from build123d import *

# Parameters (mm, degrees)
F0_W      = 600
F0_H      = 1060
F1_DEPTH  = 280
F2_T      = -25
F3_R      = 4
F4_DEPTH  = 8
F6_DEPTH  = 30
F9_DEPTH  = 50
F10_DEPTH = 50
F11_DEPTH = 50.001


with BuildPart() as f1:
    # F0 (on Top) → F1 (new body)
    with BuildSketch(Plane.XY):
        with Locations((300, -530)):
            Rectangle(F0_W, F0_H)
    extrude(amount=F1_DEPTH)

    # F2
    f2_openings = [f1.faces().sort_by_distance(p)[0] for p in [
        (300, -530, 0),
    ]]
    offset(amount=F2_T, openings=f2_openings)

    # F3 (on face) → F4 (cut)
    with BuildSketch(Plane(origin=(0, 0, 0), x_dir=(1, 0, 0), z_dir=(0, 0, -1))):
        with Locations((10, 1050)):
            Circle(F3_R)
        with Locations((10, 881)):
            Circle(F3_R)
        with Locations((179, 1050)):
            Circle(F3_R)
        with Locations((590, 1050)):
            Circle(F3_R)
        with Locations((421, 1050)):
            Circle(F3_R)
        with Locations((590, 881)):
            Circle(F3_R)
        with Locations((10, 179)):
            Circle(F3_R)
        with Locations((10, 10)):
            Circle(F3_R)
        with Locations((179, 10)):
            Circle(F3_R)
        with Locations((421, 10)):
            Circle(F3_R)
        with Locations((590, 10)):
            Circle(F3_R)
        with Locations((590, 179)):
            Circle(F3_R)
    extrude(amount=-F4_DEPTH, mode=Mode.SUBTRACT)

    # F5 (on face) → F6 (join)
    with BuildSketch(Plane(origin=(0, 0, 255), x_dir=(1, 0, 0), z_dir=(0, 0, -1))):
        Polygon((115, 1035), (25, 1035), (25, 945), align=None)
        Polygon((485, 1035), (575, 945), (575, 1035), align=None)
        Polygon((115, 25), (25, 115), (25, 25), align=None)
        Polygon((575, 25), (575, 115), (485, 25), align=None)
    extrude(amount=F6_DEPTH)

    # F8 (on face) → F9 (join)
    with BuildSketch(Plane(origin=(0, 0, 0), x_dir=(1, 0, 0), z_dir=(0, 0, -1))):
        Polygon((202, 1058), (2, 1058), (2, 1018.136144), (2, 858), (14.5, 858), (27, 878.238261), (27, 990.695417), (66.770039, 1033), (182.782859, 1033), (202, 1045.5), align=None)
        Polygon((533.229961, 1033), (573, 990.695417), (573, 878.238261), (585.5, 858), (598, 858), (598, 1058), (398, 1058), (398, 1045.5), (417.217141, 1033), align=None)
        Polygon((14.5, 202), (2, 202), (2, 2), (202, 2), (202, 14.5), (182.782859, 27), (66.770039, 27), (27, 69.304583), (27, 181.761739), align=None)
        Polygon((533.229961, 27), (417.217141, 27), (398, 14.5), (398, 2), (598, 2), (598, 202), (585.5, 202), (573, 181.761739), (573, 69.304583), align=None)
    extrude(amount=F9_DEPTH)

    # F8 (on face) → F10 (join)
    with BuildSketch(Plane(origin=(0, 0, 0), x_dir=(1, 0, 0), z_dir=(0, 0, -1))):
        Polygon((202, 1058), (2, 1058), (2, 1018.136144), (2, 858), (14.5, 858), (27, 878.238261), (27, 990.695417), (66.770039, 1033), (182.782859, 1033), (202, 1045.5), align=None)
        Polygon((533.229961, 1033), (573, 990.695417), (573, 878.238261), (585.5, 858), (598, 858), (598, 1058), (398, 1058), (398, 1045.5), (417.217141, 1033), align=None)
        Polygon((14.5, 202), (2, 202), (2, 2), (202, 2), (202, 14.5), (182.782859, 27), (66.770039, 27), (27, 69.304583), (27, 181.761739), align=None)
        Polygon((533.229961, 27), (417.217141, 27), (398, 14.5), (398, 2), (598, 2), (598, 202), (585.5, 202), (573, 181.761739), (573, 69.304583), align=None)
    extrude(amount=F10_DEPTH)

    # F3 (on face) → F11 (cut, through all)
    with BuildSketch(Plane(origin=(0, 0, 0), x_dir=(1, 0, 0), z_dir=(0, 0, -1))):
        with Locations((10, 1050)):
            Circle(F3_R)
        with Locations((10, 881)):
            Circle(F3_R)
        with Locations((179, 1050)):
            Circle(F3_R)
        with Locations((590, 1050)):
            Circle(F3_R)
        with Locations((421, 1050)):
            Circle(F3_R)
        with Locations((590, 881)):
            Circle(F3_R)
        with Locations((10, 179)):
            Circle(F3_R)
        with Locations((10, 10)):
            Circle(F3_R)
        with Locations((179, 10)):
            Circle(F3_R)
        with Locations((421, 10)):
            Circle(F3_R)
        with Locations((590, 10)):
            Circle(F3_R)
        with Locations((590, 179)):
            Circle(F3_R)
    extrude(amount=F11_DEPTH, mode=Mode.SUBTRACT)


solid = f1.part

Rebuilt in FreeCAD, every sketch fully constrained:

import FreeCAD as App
import Part
import Sketcher
from FreeCAD import Vector


def faces_at(feature, points):
    """Names of the faces that lie closest to the given points."""
    faces = feature.Shape.Faces
    near = lambda p: min(range(len(faces)), key=lambda i: faces[i].distToShape(Part.Vertex(*p))[0])
    return sorted({f"Face{near(p) + 1}" for p in points})


def add_polygon(sketch, points):
    """Adds a closed chain of lines whose ends are joined by coincident constraints."""
    first, n = sketch.GeometryCount, len(points)
    for a, b in zip(points, points[1:] + points[:1]):
        sketch.addGeometry(Part.LineSegment(App.Vector(*a, 0), App.Vector(*b, 0)), False)
    for i in range(n):
        sketch.addConstraint(Sketcher.Constraint("Coincident", first + i, 2, first + (i + 1) % n, 1))

doc = App.newDocument("Part")
body = doc.addObject("PartDesign::Body", "Body")

# Sketch on XY plane
sketch1 = body.newObject("Sketcher::SketchObject", "Sketch")
sketch1.AttachmentSupport = (doc.getObject("XY_Plane"), [""])
sketch1.MapMode = "FlatFace"
add_polygon(sketch1, [(0, 0), (0, -1060), (600, -1060), (600, 0)])  # lines 0-3
sketch1.addConstraint([
    Sketcher.Constraint("Vertical", 0),
    Sketcher.Constraint("Horizontal", 1),
    Sketcher.Constraint("Vertical", 2),
    Sketcher.Constraint("Horizontal", 3),
    Sketcher.Constraint("Coincident", 3, 2, -1, 1),
    Sketcher.Constraint("DistanceX", 1, 1, 1, 2, 600.0),
    Sketcher.Constraint("DistanceY", 0, 2, 0, 1, 1060.0),
])
pad1 = body.newObject("PartDesign::Pad", "Pad")
pad1.Profile = sketch1
pad1.Length = 280
doc.recompute()

thickness = body.newObject("PartDesign::Thickness", "Thickness")
thickness.Base = (pad1, faces_at(pad1, [(300, -530, 0)]))
thickness.Value = 25
thickness.Reversed = True
thickness.Join = "Arc"

# Sketch on XY plane
sketch2 = body.newObject("Sketcher::SketchObject", "Sketch001")
sketch2.AttachmentSupport = (doc.getObject("XY_Plane"), [""])
sketch2.MapMode = "FlatFace"
sketch2.addGeometry([
    Part.Circle(Vector(10, -1050, 0), Vector(0, 0, 1), 4),  # 0
    Part.Circle(Vector(10, -881, 0), Vector(0, 0, 1), 4),  # 1
    Part.Circle(Vector(179, -1050, 0), Vector(0, 0, 1), 4),  # 2
    Part.Circle(Vector(590, -1050, 0), Vector(0, 0, 1), 4),  # 3
    Part.Circle(Vector(421, -1050, 0), Vector(0, 0, 1), 4),  # 4
    Part.Circle(Vector(590, -881, 0), Vector(0, 0, 1), 4),  # 5
    Part.Circle(Vector(10, -179, 0), Vector(0, 0, 1), 4),  # 6
    Part.Circle(Vector(10, -10, 0), Vector(0, 0, 1), 4),  # 7
    Part.Circle(Vector(179, -10, 0), Vector(0, 0, 1), 4),  # 8
    Part.Circle(Vector(421, -10, 0), Vector(0, 0, 1), 4),  # 9
    Part.Circle(Vector(590, -10, 0), Vector(0, 0, 1), 4),  # 10
    Part.Circle(Vector(590, -179, 0), Vector(0, 0, 1), 4),  # 11
], False)
sketch2.addConstraint([
    Sketcher.Constraint("Equal", 0, 1),
    Sketcher.Constraint("Equal", 1, 2),
    Sketcher.Constraint("Equal", 2, 3),
    Sketcher.Constraint("Equal", 3, 4),
    Sketcher.Constraint("Equal", 4, 5),
    Sketcher.Constraint("Equal", 5, 6),
    Sketcher.Constraint("Equal", 6, 7),
    Sketcher.Constraint("Equal", 7, 8),
    Sketcher.Constraint("Equal", 8, 9),
    Sketcher.Constraint("Equal", 9, 10),
    Sketcher.Constraint("Equal", 10, 11),
    Sketcher.Constraint("Horizontal", 0, 3, 2, 3),
    Sketcher.Constraint("Horizontal", 2, 3, 3, 3),
    Sketcher.Constraint("Horizontal", 3, 3, 4, 3),
    Sketcher.Constraint("Horizontal", 1, 3, 5, 3),
    Sketcher.Constraint("Horizontal", 7, 3, 8, 3),
    Sketcher.Constraint("Horizontal", 8, 3, 9, 3),
    Sketcher.Constraint("Horizontal", 9, 3, 10, 3),
    Sketcher.Constraint("Horizontal", 6, 3, 11, 3),
    Sketcher.Constraint("Vertical", 0, 3, 1, 3),
    Sketcher.Constraint("Vertical", 3, 3, 5, 3),
    Sketcher.Constraint("Vertical", 1, 3, 6, 3),
    Sketcher.Constraint("Vertical", 6, 3, 7, 3),
    Sketcher.Constraint("Vertical", 2, 3, 8, 3),
    Sketcher.Constraint("Vertical", 4, 3, 9, 3),
    Sketcher.Constraint("Vertical", 5, 3, 10, 3),
    Sketcher.Constraint("Vertical", 10, 3, 11, 3),
    Sketcher.Constraint("Diameter", 0, 8.0),
    Sketcher.Constraint("DistanceX", -1, 1, 0, 3, 10.0),
    Sketcher.Constraint("DistanceY", 0, 3, -1, 1, 1050.0),
    Sketcher.Constraint("DistanceY", 1, 3, -1, 1, 881.0),
    Sketcher.Constraint("DistanceX", -1, 1, 2, 3, 179.0),
    Sketcher.Constraint("DistanceX", -1, 1, 3, 3, 590.0),
    Sketcher.Constraint("DistanceX", -1, 1, 4, 3, 421.0),
    Sketcher.Constraint("DistanceY", 6, 3, -1, 1, 179.0),
    Sketcher.Constraint("DistanceY", 7, 3, -1, 1, 10.0),
])
pocket1 = body.newObject("PartDesign::Pocket", "Pocket")
pocket1.Profile = sketch2
pocket1.Length = 8
pocket1.Reversed = True

# Sketch on XY plane
sketch3 = body.newObject("Sketcher::SketchObject", "Sketch002")
sketch3.AttachmentSupport = (doc.getObject("XY_Plane"), [""])
sketch3.MapMode = "FlatFace"
sketch3.AttachmentOffset = App.Placement(Vector(0, 0, 255), App.Rotation())
add_polygon(sketch3, [(115, -1035), (25, -1035), (25, -945)])  # lines 0-2
add_polygon(sketch3, [(485, -1035), (575, -945), (575, -1035)])  # lines 3-5
add_polygon(sketch3, [(115, -25), (25, -115), (25, -25)])  # lines 6-8
add_polygon(sketch3, [(575, -25), (575, -115), (485, -25)])  # lines 9-11
sketch3.addConstraint([
    Sketcher.Constraint("Horizontal", 0),
    Sketcher.Constraint("Vertical", 1),
    Sketcher.Constraint("Vertical", 4),
    Sketcher.Constraint("Horizontal", 5),
    Sketcher.Constraint("Vertical", 7),
    Sketcher.Constraint("Horizontal", 8),
    Sketcher.Constraint("Vertical", 9),
    Sketcher.Constraint("Horizontal", 11),
    Sketcher.Constraint("Perpendicular", 2, 3),
    Sketcher.Constraint("Parallel", 3, 6),
    Sketcher.Constraint("Perpendicular", 6, 10),
    Sketcher.Constraint("Horizontal", 1, 2, 3, 2),
    Sketcher.Constraint("Horizontal", 2, 2, 4, 2),
    Sketcher.Constraint("Horizontal", 6, 2, 9, 2),
    Sketcher.Constraint("Horizontal", 8, 2, 10, 2),
    Sketcher.Constraint("Vertical", 1, 2, 6, 2),
    Sketcher.Constraint("Vertical", 2, 2, 8, 2),
    Sketcher.Constraint("Vertical", 4, 2, 9, 2),
    Sketcher.Constraint("Vertical", 5, 2, 10, 2),
    Sketcher.Constraint("DistanceX", 0, 2, 0, 1, 90.0),
    Sketcher.Constraint("DistanceX", -1, 1, 0, 2, 25.0),
    Sketcher.Constraint("DistanceY", 0, 2, -1, 1, 1035.0),
    Sketcher.Constraint("DistanceX", -1, 1, 3, 2, 575.0),
    Sketcher.Constraint("DistanceY", 6, 2, -1, 1, 115.0),
])
pad2 = body.newObject("PartDesign::Pad", "Pad001")
pad2.Profile = sketch3
pad2.Length = 30
pad2.Reversed = True

# Sketch on XY plane
sketch4 = body.newObject("Sketcher::SketchObject", "Sketch003")
sketch4.AttachmentSupport = (doc.getObject("XY_Plane"), [""])
sketch4.MapMode = "FlatFace"
add_polygon(sketch4, [(202, -1058), (2, -1058), (2, -858), (14, -858), (27, -878), (27, -991), (67, -1033), (183, -1033), (202, -1046)])  # lines 0-8
add_polygon(sketch4, [(533, -1033), (573, -991), (573, -878), (586, -858), (598, -858), (598, -1058), (398, -1058), (398, -1046), (417, -1033)])  # lines 9-17
add_polygon(sketch4, [(14, -202), (2, -202), (2, -2), (202, -2), (202, -14), (183, -27), (67, -27), (27, -69), (27, -182)])  # lines 18-26
add_polygon(sketch4, [(533, -27), (417, -27), (398, -14), (398, -2), (598, -2), (598, -202), (586, -202), (573, -182), (573, -69)])  # lines 27-35
sketch4.addConstraint([
    Sketcher.Constraint("Horizontal", 0),
    Sketcher.Constraint("Vertical", 1),
    Sketcher.Constraint("Horizontal", 2),
    Sketcher.Constraint("Vertical", 4),
    Sketcher.Constraint("Horizontal", 6),
    Sketcher.Constraint("Vertical", 8),
    Sketcher.Constraint("Vertical", 10),
    Sketcher.Constraint("Horizontal", 12),
    Sketcher.Constraint("Vertical", 13),
    Sketcher.Constraint("Horizontal", 14),
    Sketcher.Constraint("Vertical", 15),
    Sketcher.Constraint("Horizontal", 17),
    Sketcher.Constraint("Horizontal", 18),
    Sketcher.Constraint("Vertical", 19),
    Sketcher.Constraint("Horizontal", 20),
    Sketcher.Constraint("Vertical", 21),
    Sketcher.Constraint("Horizontal", 23),
    Sketcher.Constraint("Vertical", 25),
    Sketcher.Constraint("Horizontal", 27),
    Sketcher.Constraint("Vertical", 29),
    Sketcher.Constraint("Horizontal", 30),
    Sketcher.Constraint("Vertical", 31),
    Sketcher.Constraint("Horizontal", 32),
    Sketcher.Constraint("Vertical", 34),
    Sketcher.Constraint("Parallel", 16, 22),
    Sketcher.Constraint("Parallel", 9, 24),
    Sketcher.Constraint("Parallel", 11, 26),
    Sketcher.Constraint("Parallel", 7, 28),
    Sketcher.Constraint("Parallel", 3, 33),
    Sketcher.Constraint("Parallel", 5, 35),
    Sketcher.Constraint("Horizontal", 4, 2, 9, 2),
    Sketcher.Constraint("Horizontal", 3, 2, 10, 2),
    Sketcher.Constraint("Horizontal", 2, 2, 11, 2),
    Sketcher.Constraint("Horizontal", 8, 2, 13, 2),
    Sketcher.Constraint("Horizontal", 7, 2, 15, 2),
    Sketcher.Constraint("Horizontal", 6, 2, 16, 2),
    Sketcher.Constraint("Horizontal", 23, 2, 27, 2),
    Sketcher.Constraint("Horizontal", 21, 2, 28, 2),
    Sketcher.Constraint("Horizontal", 20, 2, 29, 2),
    Sketcher.Constraint("Horizontal", 26, 2, 31, 2),
    Sketcher.Constraint("Horizontal", 25, 2, 33, 2),
    Sketcher.Constraint("Horizontal", 24, 2, 34, 2),
    Sketcher.Constraint("Vertical", 1, 2, 18, 2),
    Sketcher.Constraint("Vertical", 8, 2, 20, 2),
    Sketcher.Constraint("Vertical", 6, 2, 22, 2),
    Sketcher.Constraint("Vertical", 5, 2, 23, 2),
    Sketcher.Constraint("Vertical", 4, 2, 24, 2),
    Sketcher.Constraint("Vertical", 2, 2, 26, 2),
    Sketcher.Constraint("Vertical", 16, 2, 27, 2),
    Sketcher.Constraint("Vertical", 15, 2, 28, 2),
    Sketcher.Constraint("Vertical", 13, 2, 30, 2),
    Sketcher.Constraint("Vertical", 11, 2, 32, 2),
    Sketcher.Constraint("Vertical", 10, 2, 33, 2),
    Sketcher.Constraint("Vertical", 17, 2, 35, 2),
    Sketcher.Constraint("Equal", 2, 12),
    Sketcher.Constraint("Equal", 0, 14),
    Sketcher.Constraint("Equal", 30, 1),
    Sketcher.Constraint("Equal", 32, 8),
    Sketcher.Constraint("Equal", 13, 19),
    Sketcher.Constraint("Equal", 15, 21),
    Sketcher.Constraint("DistanceX", 0, 2, 0, 1, 200.0),
    Sketcher.Constraint("DistanceX", 2, 1, 2, 2, 12.5),
    Sketcher.Constraint("DistanceX", -1, 1, 0, 2, 2.0),
    Sketcher.Constraint("DistanceY", 0, 2, -1, 1, 1058.0),
    Sketcher.Constraint("DistanceX", -1, 1, 3, 2, 27.0),
    Sketcher.Constraint("DistanceY", 5, 2, -1, 1, 1033.0),
    Sketcher.Constraint("DistanceX", -1, 1, 9, 2, 573.0),
    Sketcher.Constraint("DistanceY", 18, 2, -1, 1, 202.0),
    Sketcher.Constraint("DistanceX", 6, 1, 6, 2, 116.01282),
    Sketcher.Constraint("DistanceY", 4, 2, 4, 1, 112.457156),
    Sketcher.Constraint("DistanceY", 3, 2, -1, 1, 878.238261),
    Sketcher.Constraint("DistanceX", -1, 1, 5, 2, 66.770039),
])
pad3 = body.newObject("PartDesign::Pad", "Pad002")
pad3.Profile = sketch4
pad3.Length = 50
pad3.Reversed = True

# Sketch on XY plane
sketch5 = body.newObject("Sketcher::SketchObject", "Sketch004")
sketch5.AttachmentSupport = (doc.getObject("XY_Plane"), [""])
sketch5.MapMode = "FlatFace"
add_polygon(sketch5, [(202, -1058), (2, -1058), (2, -858), (14, -858), (27, -878), (27, -991), (67, -1033), (183, -1033), (202, -1046)])  # lines 0-8
add_polygon(sketch5, [(533, -1033), (573, -991), (573, -878), (586, -858), (598, -858), (598, -1058), (398, -1058), (398, -1046), (417, -1033)])  # lines 9-17
add_polygon(sketch5, [(14, -202), (2, -202), (2, -2), (202, -2), (202, -14), (183, -27), (67, -27), (27, -69), (27, -182)])  # lines 18-26
add_polygon(sketch5, [(533, -27), (417, -27), (398, -14), (398, -2), (598, -2), (598, -202), (586, -202), (573, -182), (573, -69)])  # lines 27-35
sketch5.addConstraint([
    Sketcher.Constraint("Horizontal", 0),
    Sketcher.Constraint("Vertical", 1),
    Sketcher.Constraint("Horizontal", 2),
    Sketcher.Constraint("Vertical", 4),
    Sketcher.Constraint("Horizontal", 6),
    Sketcher.Constraint("Vertical", 8),
    Sketcher.Constraint("Vertical", 10),
    Sketcher.Constraint("Horizontal", 12),
    Sketcher.Constraint("Vertical", 13),
    Sketcher.Constraint("Horizontal", 14),
    Sketcher.Constraint("Vertical", 15),
    Sketcher.Constraint("Horizontal", 17),
    Sketcher.Constraint("Horizontal", 18),
    Sketcher.Constraint("Vertical", 19),
    Sketcher.Constraint("Horizontal", 20),
    Sketcher.Constraint("Vertical", 21),
    Sketcher.Constraint("Horizontal", 23),
    Sketcher.Constraint("Vertical", 25),
    Sketcher.Constraint("Horizontal", 27),
    Sketcher.Constraint("Vertical", 29),
    Sketcher.Constraint("Horizontal", 30),
    Sketcher.Constraint("Vertical", 31),
    Sketcher.Constraint("Horizontal", 32),
    Sketcher.Constraint("Vertical", 34),
    Sketcher.Constraint("Parallel", 16, 22),
    Sketcher.Constraint("Parallel", 9, 24),
    Sketcher.Constraint("Parallel", 11, 26),
    Sketcher.Constraint("Parallel", 7, 28),
    Sketcher.Constraint("Parallel", 3, 33),
    Sketcher.Constraint("Parallel", 5, 35),
    Sketcher.Constraint("Horizontal", 4, 2, 9, 2),
    Sketcher.Constraint("Horizontal", 3, 2, 10, 2),
    Sketcher.Constraint("Horizontal", 2, 2, 11, 2),
    Sketcher.Constraint("Horizontal", 8, 2, 13, 2),
    Sketcher.Constraint("Horizontal", 7, 2, 15, 2),
    Sketcher.Constraint("Horizontal", 6, 2, 16, 2),
    Sketcher.Constraint("Horizontal", 23, 2, 27, 2),
    Sketcher.Constraint("Horizontal", 21, 2, 28, 2),
    Sketcher.Constraint("Horizontal", 20, 2, 29, 2),
    Sketcher.Constraint("Horizontal", 26, 2, 31, 2),
    Sketcher.Constraint("Horizontal", 25, 2, 33, 2),
    Sketcher.Constraint("Horizontal", 24, 2, 34, 2),
    Sketcher.Constraint("Vertical", 1, 2, 18, 2),
    Sketcher.Constraint("Vertical", 8, 2, 20, 2),
    Sketcher.Constraint("Vertical", 6, 2, 22, 2),
    Sketcher.Constraint("Vertical", 5, 2, 23, 2),
    Sketcher.Constraint("Vertical", 4, 2, 24, 2),
    Sketcher.Constraint("Vertical", 2, 2, 26, 2),
    Sketcher.Constraint("Vertical", 16, 2, 27, 2),
    Sketcher.Constraint("Vertical", 15, 2, 28, 2),
    Sketcher.Constraint("Vertical", 13, 2, 30, 2),
    Sketcher.Constraint("Vertical", 11, 2, 32, 2),
    Sketcher.Constraint("Vertical", 10, 2, 33, 2),
    Sketcher.Constraint("Vertical", 17, 2, 35, 2),
    Sketcher.Constraint("Equal", 2, 12),
    Sketcher.Constraint("Equal", 0, 14),
    Sketcher.Constraint("Equal", 30, 1),
    Sketcher.Constraint("Equal", 32, 8),
    Sketcher.Constraint("Equal", 13, 19),
    Sketcher.Constraint("Equal", 15, 21),
    Sketcher.Constraint("DistanceX", 0, 2, 0, 1, 200.0),
    Sketcher.Constraint("DistanceX", 2, 1, 2, 2, 12.5),
    Sketcher.Constraint("DistanceX", -1, 1, 0, 2, 2.0),
    Sketcher.Constraint("DistanceY", 0, 2, -1, 1, 1058.0),
    Sketcher.Constraint("DistanceX", -1, 1, 3, 2, 27.0),
    Sketcher.Constraint("DistanceY", 5, 2, -1, 1, 1033.0),
    Sketcher.Constraint("DistanceX", -1, 1, 9, 2, 573.0),
    Sketcher.Constraint("DistanceY", 18, 2, -1, 1, 202.0),
    Sketcher.Constraint("DistanceX", 6, 1, 6, 2, 116.01282),
    Sketcher.Constraint("DistanceY", 4, 2, 4, 1, 112.457156),
    Sketcher.Constraint("DistanceY", 3, 2, -1, 1, 878.238261),
    Sketcher.Constraint("DistanceX", -1, 1, 5, 2, 66.770039),
])
pad4 = body.newObject("PartDesign::Pad", "Pad003")
pad4.Profile = sketch5
pad4.Length = 50
pad4.Reversed = True

# Sketch on XY plane
sketch6 = body.newObject("Sketcher::SketchObject", "Sketch005")
sketch6.AttachmentSupport = (doc.getObject("XY_Plane"), [""])
sketch6.MapMode = "FlatFace"
sketch6.addGeometry([
    Part.Circle(Vector(10, -1050, 0), Vector(0, 0, 1), 4),  # 0
    Part.Circle(Vector(10, -881, 0), Vector(0, 0, 1), 4),  # 1
    Part.Circle(Vector(179, -1050, 0), Vector(0, 0, 1), 4),  # 2
    Part.Circle(Vector(590, -1050, 0), Vector(0, 0, 1), 4),  # 3
    Part.Circle(Vector(421, -1050, 0), Vector(0, 0, 1), 4),  # 4
    Part.Circle(Vector(590, -881, 0), Vector(0, 0, 1), 4),  # 5
    Part.Circle(Vector(10, -179, 0), Vector(0, 0, 1), 4),  # 6
    Part.Circle(Vector(10, -10, 0), Vector(0, 0, 1), 4),  # 7
    Part.Circle(Vector(179, -10, 0), Vector(0, 0, 1), 4),  # 8
    Part.Circle(Vector(421, -10, 0), Vector(0, 0, 1), 4),  # 9
    Part.Circle(Vector(590, -10, 0), Vector(0, 0, 1), 4),  # 10
    Part.Circle(Vector(590, -179, 0), Vector(0, 0, 1), 4),  # 11
], False)
sketch6.addConstraint([
    Sketcher.Constraint("Equal", 0, 1),
    Sketcher.Constraint("Equal", 1, 2),
    Sketcher.Constraint("Equal", 2, 3),
    Sketcher.Constraint("Equal", 3, 4),
    Sketcher.Constraint("Equal", 4, 5),
    Sketcher.Constraint("Equal", 5, 6),
    Sketcher.Constraint("Equal", 6, 7),
    Sketcher.Constraint("Equal", 7, 8),
    Sketcher.Constraint("Equal", 8, 9),
    Sketcher.Constraint("Equal", 9, 10),
    Sketcher.Constraint("Equal", 10, 11),
    Sketcher.Constraint("Horizontal", 0, 3, 2, 3),
    Sketcher.Constraint("Horizontal", 2, 3, 3, 3),
    Sketcher.Constraint("Horizontal", 3, 3, 4, 3),
    Sketcher.Constraint("Horizontal", 1, 3, 5, 3),
    Sketcher.Constraint("Horizontal", 7, 3, 8, 3),
    Sketcher.Constraint("Horizontal", 8, 3, 9, 3),
    Sketcher.Constraint("Horizontal", 9, 3, 10, 3),
    Sketcher.Constraint("Horizontal", 6, 3, 11, 3),
    Sketcher.Constraint("Vertical", 0, 3, 1, 3),
    Sketcher.Constraint("Vertical", 3, 3, 5, 3),
    Sketcher.Constraint("Vertical", 1, 3, 6, 3),
    Sketcher.Constraint("Vertical", 6, 3, 7, 3),
    Sketcher.Constraint("Vertical", 2, 3, 8, 3),
    Sketcher.Constraint("Vertical", 4, 3, 9, 3),
    Sketcher.Constraint("Vertical", 5, 3, 10, 3),
    Sketcher.Constraint("Vertical", 10, 3, 11, 3),
    Sketcher.Constraint("Diameter", 0, 8.0),
    Sketcher.Constraint("DistanceX", -1, 1, 0, 3, 10.0),
    Sketcher.Constraint("DistanceY", 0, 3, -1, 1, 1050.0),
    Sketcher.Constraint("DistanceY", 1, 3, -1, 1, 881.0),
    Sketcher.Constraint("DistanceX", -1, 1, 2, 3, 179.0),
    Sketcher.Constraint("DistanceX", -1, 1, 3, 3, 590.0),
    Sketcher.Constraint("DistanceX", -1, 1, 4, 3, 421.0),
    Sketcher.Constraint("DistanceY", 6, 3, -1, 1, 179.0),
    Sketcher.Constraint("DistanceY", 7, 3, -1, 1, 10.0),
])
pocket2 = body.newObject("PartDesign::Pocket", "Pocket001")
pocket2.Profile = sketch6
pocket2.Type = "ThroughAll"

doc.recompute()
